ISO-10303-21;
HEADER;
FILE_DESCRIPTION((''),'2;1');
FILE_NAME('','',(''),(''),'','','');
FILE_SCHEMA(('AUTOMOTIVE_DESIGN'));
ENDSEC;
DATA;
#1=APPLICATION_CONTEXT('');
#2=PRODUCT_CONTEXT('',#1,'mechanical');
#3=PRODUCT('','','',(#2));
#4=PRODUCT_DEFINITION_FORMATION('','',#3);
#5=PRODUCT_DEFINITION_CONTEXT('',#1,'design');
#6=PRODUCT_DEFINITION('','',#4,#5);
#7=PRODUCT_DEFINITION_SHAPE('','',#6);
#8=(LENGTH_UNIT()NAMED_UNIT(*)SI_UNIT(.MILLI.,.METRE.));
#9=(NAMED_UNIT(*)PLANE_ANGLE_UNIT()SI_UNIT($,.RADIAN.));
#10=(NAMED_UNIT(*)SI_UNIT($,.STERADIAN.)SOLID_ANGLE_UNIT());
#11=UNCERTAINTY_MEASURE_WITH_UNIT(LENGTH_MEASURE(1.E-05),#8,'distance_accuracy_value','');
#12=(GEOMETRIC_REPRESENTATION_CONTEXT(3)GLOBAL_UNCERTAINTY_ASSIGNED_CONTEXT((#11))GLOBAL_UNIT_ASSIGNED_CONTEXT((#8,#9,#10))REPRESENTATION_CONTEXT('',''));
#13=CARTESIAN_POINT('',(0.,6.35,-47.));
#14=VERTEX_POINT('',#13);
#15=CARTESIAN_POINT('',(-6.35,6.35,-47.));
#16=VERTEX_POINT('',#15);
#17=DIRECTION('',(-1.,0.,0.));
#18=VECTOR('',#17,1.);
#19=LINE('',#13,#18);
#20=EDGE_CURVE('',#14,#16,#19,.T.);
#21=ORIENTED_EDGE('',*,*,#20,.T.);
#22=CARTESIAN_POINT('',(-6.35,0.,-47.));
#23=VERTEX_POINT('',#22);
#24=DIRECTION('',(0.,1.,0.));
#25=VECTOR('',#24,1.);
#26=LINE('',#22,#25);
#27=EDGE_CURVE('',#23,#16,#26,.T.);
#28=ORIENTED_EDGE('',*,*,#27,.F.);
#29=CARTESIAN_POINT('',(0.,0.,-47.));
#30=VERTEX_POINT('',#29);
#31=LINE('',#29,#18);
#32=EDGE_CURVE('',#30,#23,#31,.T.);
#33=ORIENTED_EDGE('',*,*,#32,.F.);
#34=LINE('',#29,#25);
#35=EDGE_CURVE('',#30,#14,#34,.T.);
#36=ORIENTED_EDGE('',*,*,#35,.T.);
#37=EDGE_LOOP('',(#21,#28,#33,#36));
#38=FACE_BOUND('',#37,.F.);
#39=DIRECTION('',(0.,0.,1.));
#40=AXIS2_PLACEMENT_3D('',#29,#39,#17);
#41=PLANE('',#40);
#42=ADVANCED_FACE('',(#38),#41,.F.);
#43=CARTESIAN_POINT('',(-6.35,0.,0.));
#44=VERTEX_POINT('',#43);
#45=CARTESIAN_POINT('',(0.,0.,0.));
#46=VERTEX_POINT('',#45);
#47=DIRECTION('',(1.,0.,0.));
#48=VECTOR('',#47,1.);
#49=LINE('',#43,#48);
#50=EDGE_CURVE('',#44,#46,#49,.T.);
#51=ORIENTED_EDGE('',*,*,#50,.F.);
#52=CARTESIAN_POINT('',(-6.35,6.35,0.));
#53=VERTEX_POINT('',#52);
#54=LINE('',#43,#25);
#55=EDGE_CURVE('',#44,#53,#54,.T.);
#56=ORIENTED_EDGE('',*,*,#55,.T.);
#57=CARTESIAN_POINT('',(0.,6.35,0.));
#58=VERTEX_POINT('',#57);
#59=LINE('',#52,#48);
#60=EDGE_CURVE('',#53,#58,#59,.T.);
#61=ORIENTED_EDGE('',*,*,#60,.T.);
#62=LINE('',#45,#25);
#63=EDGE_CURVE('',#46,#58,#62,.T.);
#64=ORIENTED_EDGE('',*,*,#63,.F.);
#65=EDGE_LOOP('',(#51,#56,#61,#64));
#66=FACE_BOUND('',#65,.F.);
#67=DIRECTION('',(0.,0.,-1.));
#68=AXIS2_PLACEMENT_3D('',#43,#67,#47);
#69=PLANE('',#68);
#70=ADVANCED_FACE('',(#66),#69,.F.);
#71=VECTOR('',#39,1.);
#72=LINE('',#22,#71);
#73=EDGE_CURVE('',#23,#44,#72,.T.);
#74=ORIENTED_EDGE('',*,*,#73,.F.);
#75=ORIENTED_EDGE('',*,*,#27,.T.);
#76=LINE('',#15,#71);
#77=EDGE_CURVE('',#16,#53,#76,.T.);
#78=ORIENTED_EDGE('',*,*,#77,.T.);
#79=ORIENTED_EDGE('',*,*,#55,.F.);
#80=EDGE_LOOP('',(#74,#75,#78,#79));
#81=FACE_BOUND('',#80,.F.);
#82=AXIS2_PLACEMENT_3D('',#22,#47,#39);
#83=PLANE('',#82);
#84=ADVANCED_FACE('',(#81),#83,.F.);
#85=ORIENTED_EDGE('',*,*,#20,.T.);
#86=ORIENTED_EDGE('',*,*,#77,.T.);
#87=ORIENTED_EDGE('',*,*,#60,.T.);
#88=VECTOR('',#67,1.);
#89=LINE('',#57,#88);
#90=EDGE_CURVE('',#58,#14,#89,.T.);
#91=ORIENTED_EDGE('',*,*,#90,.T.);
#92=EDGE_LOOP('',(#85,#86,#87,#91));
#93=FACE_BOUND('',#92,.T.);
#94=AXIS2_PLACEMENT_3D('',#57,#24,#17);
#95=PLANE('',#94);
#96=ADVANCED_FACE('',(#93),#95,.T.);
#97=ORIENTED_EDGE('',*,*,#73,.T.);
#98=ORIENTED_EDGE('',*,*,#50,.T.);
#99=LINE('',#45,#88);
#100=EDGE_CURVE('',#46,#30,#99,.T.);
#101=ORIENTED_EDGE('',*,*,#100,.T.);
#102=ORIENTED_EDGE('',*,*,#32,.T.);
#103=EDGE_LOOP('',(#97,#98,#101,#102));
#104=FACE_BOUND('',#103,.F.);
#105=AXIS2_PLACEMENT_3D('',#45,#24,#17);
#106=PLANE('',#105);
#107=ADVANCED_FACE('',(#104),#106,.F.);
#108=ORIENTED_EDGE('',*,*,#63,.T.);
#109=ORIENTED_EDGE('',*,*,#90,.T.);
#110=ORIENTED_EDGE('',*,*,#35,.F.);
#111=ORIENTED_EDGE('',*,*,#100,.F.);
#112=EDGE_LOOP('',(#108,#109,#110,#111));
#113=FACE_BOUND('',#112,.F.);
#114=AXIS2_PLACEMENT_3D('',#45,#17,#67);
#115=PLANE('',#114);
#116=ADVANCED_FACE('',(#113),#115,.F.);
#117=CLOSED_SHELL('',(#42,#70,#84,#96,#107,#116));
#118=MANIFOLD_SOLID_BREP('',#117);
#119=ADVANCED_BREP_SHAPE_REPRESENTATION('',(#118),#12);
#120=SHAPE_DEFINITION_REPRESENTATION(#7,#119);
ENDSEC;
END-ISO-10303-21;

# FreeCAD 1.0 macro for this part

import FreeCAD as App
import Part
import Sketcher
from FreeCAD import Vector
Q = App.Units.Quantity


def add_polygon(sketch, points):
    """Adds a closed chain of lines whose ends are joined by coincident constraints."""
    first, n = sketch.GeometryCount, len(points)
    for a, b in zip(points, points[1:] + points[:1]):
        sketch.addGeometry(Part.LineSegment(App.Vector(*a, 0), App.Vector(*b, 0)), False)
    for i in range(n):
        sketch.addConstraint(Sketcher.Constraint("Coincident", first + i, 2, first + (i + 1) % n, 1))

doc = App.newDocument("Part")
params = doc.addObject("Spreadsheet::Sheet", "Params")
for row, (alias, value) in enumerate([
    ("sketch1_width", "0.25 in"),
    ("pad1_length", "0.25 in"),
], start=1):
    params.set(f"A{row}", alias)
    params.set(f"B{row}", "=" + value)
    params.setAlias(f"B{row}", alias)

body = doc.addObject("PartDesign::Body", "Body")

sketch1 = body.newObject("Sketcher::SketchObject", "Sketch")
sketch1.AttachmentSupport = (doc.getObject("XZ_Plane"), [""])
sketch1.MapMode = "FlatFace"
add_polygon(sketch1, [(-6.35, 0), (0, 0), (0, -47), (-6.35, -47)])
sketch1.addConstraint([
    Sketcher.Constraint("Horizontal", 0),
    Sketcher.Constraint("Vertical", 1),
    Sketcher.Constraint("Horizontal", 2),
    Sketcher.Constraint("Vertical", 3),
    Sketcher.Constraint("Coincident", 0, 2, -1, 1),
    Sketcher.Constraint("DistanceX", 0, 1, 0, 2, Q("0.25 in")),
    Sketcher.Constraint("DistanceY", 1, 2, 1, 1, Q("1.8504 in")),
])
sketch1.setExpression("Constraints[9]", "Params.sketch1_width")
pad1 = body.newObject("PartDesign::Pad", "Pad")
pad1.Profile = sketch1
pad1.setExpression("Length", "Params.pad1_length")
pad1.Reversed = True

doc.recompute()
